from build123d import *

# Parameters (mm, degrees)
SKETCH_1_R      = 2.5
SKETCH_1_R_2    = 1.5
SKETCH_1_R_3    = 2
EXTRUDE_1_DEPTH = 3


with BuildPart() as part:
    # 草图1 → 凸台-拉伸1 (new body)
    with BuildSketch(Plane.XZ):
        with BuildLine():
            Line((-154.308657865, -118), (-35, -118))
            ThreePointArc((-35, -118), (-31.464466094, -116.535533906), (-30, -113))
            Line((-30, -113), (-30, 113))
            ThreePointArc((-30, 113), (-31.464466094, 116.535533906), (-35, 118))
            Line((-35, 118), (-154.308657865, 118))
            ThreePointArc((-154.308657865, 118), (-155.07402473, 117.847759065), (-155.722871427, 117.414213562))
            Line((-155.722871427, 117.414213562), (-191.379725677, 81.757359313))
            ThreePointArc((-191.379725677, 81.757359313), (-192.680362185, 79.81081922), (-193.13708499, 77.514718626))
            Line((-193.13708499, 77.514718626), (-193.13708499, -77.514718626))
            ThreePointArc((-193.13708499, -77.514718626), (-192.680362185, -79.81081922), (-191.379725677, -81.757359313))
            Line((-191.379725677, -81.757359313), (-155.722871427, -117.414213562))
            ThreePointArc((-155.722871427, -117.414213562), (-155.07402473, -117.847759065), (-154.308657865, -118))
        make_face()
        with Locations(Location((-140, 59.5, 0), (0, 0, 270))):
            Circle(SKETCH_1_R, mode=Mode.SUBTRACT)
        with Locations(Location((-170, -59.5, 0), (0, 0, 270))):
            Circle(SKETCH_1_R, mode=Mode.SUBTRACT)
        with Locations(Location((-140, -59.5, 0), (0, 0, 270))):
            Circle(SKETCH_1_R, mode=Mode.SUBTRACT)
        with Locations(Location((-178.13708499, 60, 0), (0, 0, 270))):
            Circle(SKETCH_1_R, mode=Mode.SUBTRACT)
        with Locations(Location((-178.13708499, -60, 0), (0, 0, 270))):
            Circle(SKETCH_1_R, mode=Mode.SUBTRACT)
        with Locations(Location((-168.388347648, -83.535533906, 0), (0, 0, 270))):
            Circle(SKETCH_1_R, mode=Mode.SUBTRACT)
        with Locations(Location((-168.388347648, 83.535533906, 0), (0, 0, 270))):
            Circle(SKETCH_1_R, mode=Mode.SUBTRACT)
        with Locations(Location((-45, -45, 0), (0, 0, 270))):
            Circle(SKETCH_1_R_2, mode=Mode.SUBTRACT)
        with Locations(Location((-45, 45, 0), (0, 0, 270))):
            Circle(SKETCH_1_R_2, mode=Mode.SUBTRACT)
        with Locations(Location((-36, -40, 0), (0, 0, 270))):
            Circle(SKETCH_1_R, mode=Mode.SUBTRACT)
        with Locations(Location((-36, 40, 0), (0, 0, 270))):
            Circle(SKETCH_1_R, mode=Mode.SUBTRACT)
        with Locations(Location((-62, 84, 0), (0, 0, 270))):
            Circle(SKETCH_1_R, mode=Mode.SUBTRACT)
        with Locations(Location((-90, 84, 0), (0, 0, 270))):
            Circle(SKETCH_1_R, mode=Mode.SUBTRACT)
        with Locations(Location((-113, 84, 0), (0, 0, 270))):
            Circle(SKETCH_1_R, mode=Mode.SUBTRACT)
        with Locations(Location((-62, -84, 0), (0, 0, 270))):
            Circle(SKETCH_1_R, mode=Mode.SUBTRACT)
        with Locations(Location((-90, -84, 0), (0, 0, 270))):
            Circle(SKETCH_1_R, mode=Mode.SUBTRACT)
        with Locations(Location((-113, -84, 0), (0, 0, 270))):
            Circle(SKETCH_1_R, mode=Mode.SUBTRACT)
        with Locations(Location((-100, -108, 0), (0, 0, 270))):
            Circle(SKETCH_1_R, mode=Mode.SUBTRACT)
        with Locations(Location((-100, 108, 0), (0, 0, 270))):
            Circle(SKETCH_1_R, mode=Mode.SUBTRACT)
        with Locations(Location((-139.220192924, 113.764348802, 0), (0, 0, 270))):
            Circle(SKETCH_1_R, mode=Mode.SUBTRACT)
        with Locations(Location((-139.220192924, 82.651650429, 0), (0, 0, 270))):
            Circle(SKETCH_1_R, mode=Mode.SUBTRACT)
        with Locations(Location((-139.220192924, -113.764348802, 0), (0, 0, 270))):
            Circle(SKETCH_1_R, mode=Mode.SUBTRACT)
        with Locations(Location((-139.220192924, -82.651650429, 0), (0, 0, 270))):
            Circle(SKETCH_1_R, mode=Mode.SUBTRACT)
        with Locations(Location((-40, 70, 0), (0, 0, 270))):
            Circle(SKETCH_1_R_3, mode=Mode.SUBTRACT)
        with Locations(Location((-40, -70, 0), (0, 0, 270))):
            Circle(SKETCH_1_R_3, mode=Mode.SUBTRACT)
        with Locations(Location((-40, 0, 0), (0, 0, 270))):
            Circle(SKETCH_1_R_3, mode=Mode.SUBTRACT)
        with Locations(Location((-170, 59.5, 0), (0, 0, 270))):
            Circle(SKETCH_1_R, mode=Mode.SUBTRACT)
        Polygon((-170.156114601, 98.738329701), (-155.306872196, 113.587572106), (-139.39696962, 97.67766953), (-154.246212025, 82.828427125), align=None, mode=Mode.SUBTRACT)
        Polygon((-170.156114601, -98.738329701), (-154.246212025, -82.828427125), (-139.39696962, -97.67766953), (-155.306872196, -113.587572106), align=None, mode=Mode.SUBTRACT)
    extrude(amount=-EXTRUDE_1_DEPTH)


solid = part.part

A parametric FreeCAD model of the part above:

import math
import FreeCAD as App
import Part
import Sketcher


def add_polygon(sketch, points):
    """Adds a closed chain of lines whose ends are joined by coincident constraints."""
    first, n = sketch.GeometryCount, len(points)
    for a, b in zip(points, points[1:] + points[:1]):
        sketch.addGeometry(Part.LineSegment(App.Vector(*a, 0), App.Vector(*b, 0)), False)
    for i in range(n):
        sketch.addConstraint(Sketcher.Constraint("Coincident", first + i, 2, first + (i + 1) % n, 1))

doc = App.newDocument("Part")
params = doc.addObject("Spreadsheet::Sheet", "Params")
for row, (alias, value) in enumerate([
    ("sketch1_diameter", "5 mm"),
    ("sketch1_diameter2", "4 mm"),
    ("sketch1_diameter3", "3 mm"),
    ("sketch1_radius", "5 mm"),
    ("sketch1_radius2", "6 mm"),
    ("pad1_length", "3 mm"),
], start=1):
    params.set(f"A{row}", alias)
    params.set(f"B{row}", "=" + value)
    params.setAlias(f"B{row}", alias)

body = doc.addObject("PartDesign::Body", "Body")

# Sketch on XZ plane
sketch1 = doc.addObject("Sketcher::SketchObject", "Sketch")
body.addObject(sketch1)
sketch1.AttachmentSupport = (doc.XZ_Plane, [""])
sketch1.MapMode = "FlatFace"
sketch1.addGeometry(Part.LineSegment(App.Vector(-154.3, -118, 0), App.Vector(-35, -118, 0)), False)  # 0
sketch1.addGeometry(Part.ArcOfCircle(Part.Circle(App.Vector(-35, -113, 0), App.Vector(0, 0, 1), 5), math.radians(-90), math.radians(0)), False)  # 1
sketch1.addGeometry(Part.LineSegment(App.Vector(-30, -113, 0), App.Vector(-30, 113, 0)), False)  # 2
sketch1.addGeometry(Part.ArcOfCircle(Part.Circle(App.Vector(-35, 113, 0), App.Vector(0, 0, 1), 5), math.radians(0), math.radians(90)), False)  # 3
sketch1.addGeometry(Part.LineSegment(App.Vector(-35, 118, 0), App.Vector(-154.3, 118, 0)), False)  # 4
sketch1.addGeometry(Part.ArcOfCircle(Part.Circle(App.Vector(-154.3, 116, 0), App.Vector(0, 0, 1), 2), math.radians(90), math.radians(135)), False)  # 5
sketch1.addGeometry(Part.LineSegment(App.Vector(-155.7, 117.4, 0), App.Vector(-191.4, 81.8, 0)), False)  # 6
sketch1.addGeometry(Part.ArcOfCircle(Part.Circle(App.Vector(-187.1, 77.5, 0), App.Vector(0, 0, 1), 6), math.radians(135), math.radians(180)), False)  # 7
sketch1.addGeometry(Part.LineSegment(App.Vector(-193.1, 77.5, 0), App.Vector(-193.1, -77.5, 0)), False)  # 8
sketch1.addGeometry(Part.ArcOfCircle(Part.Circle(App.Vector(-187.1, -77.5, 0), App.Vector(0, 0, 1), 6), math.radians(180), math.radians(225)), False)  # 9
sketch1.addGeometry(Part.LineSegment(App.Vector(-191.4, -81.8, 0), App.Vector(-155.7, -117.4, 0)), False)  # 10
sketch1.addGeometry(Part.ArcOfCircle(Part.Circle(App.Vector(-154.3, -116, 0), App.Vector(0, 0, 1), 2), math.radians(-135), math.radians(-90)), False)  # 11
add_polygon(sketch1, [(-155.3, -113.6), (-170.2, -98.7), (-154.2, -82.8), (-139.4, -97.7)])  # lines 12-15
sketch1.addGeometry(Part.Circle(App.Vector(-168.4, -83.5, 0), App.Vector(0, 0, 1), 2.5), False)  # 16
sketch1.addGeometry(Part.Circle(App.Vector(-178.1, -60, 0), App.Vector(0, 0, 1), 2.5), False)  # 17
sketch1.addGeometry(Part.Circle(App.Vector(-170, -59.5, 0), App.Vector(0, 0, 1), 2.5), False)  # 18
sketch1.addGeometry(Part.Circle(App.Vector(-139.2, -113.8, 0), App.Vector(0, 0, 1), 2.5), False)  # 19
sketch1.addGeometry(Part.Circle(App.Vector(-139.2, -82.7, 0), App.Vector(0, 0, 1), 2.5), False)  # 20
sketch1.addGeometry(Part.Circle(App.Vector(-140, -59.5, 0), App.Vector(0, 0, 1), 2.5), False)  # 21
sketch1.addGeometry(Part.Circle(App.Vector(-113, -84, 0), App.Vector(0, 0, 1), 2.5), False)  # 22
sketch1.addGeometry(Part.Circle(App.Vector(-100, -108, 0), App.Vector(0, 0, 1), 2.5), False)  # 23
sketch1.addGeometry(Part.Circle(App.Vector(-90, -84, 0), App.Vector(0, 0, 1), 2.5), False)  # 24
sketch1.addGeometry(Part.Circle(App.Vector(-62, -84, 0), App.Vector(0, 0, 1), 2.5), False)  # 25
sketch1.addGeometry(Part.Circle(App.Vector(-40, -70, 0), App.Vector(0, 0, 1), 2), False)  # 26
sketch1.addGeometry(Part.Circle(App.Vector(-45, -45, 0), App.Vector(0, 0, 1), 1.5), False)  # 27
sketch1.addGeometry(Part.Circle(App.Vector(-36, -40, 0), App.Vector(0, 0, 1), 2.5), False)  # 28
sketch1.addGeometry(Part.Circle(App.Vector(-40, 0, 0), App.Vector(0, 0, 1), 2), False)  # 29
sketch1.addGeometry(Part.Circle(App.Vector(-178.1, 60, 0), App.Vector(0, 0, 1), 2.5), False)  # 30
sketch1.addGeometry(Part.Circle(App.Vector(-170, 59.5, 0), App.Vector(0, 0, 1), 2.5), False)  # 31
sketch1.addGeometry(Part.Circle(App.Vector(-168.4, 83.5, 0), App.Vector(0, 0, 1), 2.5), False)  # 32
add_polygon(sketch1, [(-154.2, 82.8), (-170.2, 98.7), (-155.3, 113.6), (-139.4, 97.7)])  # lines 33-36
sketch1.addGeometry(Part.Circle(App.Vector(-140, 59.5, 0), App.Vector(0, 0, 1), 2.5), False)  # 37
sketch1.addGeometry(Part.Circle(App.Vector(-139.2, 82.7, 0), App.Vector(0, 0, 1), 2.5), False)  # 38
sketch1.addGeometry(Part.Circle(App.Vector(-113, 84, 0), App.Vector(0, 0, 1), 2.5), False)  # 39
sketch1.addGeometry(Part.Circle(App.Vector(-139.2, 113.8, 0), App.Vector(0, 0, 1), 2.5), False)  # 40
sketch1.addGeometry(Part.Circle(App.Vector(-36, 40, 0), App.Vector(0, 0, 1), 2.5), False)  # 41
sketch1.addGeometry(Part.Circle(App.Vector(-45, 45, 0), App.Vector(0, 0, 1), 1.5), False)  # 42
sketch1.addGeometry(Part.Circle(App.Vector(-90, 84, 0), App.Vector(0, 0, 1), 2.5), False)  # 43
sketch1.addGeometry(Part.Circle(App.Vector(-100, 108, 0), App.Vector(0, 0, 1), 2.5), False)  # 44
sketch1.addGeometry(Part.Circle(App.Vector(-62, 84, 0), App.Vector(0, 0, 1), 2.5), False)  # 45
sketch1.addGeometry(Part.Circle(App.Vector(-40, 70, 0), App.Vector(0, 0, 1), 2), False)  # 46
sketch1.addConstraint(Sketcher.Constraint("Tangent", 0, 2, 1, 1))
sketch1.addConstraint(Sketcher.Constraint("Tangent", 1, 2, 2, 1))
sketch1.addConstraint(Sketcher.Constraint("Tangent", 2, 2, 3, 1))
sketch1.addConstraint(Sketcher.Constraint("Tangent", 3, 2, 4, 1))
sketch1.addConstraint(Sketcher.Constraint("Tangent", 4, 2, 5, 1))
sketch1.addConstraint(Sketcher.Constraint("Tangent", 5, 2, 6, 1))
sketch1.addConstraint(Sketcher.Constraint("Tangent", 6, 2, 7, 1))
sketch1.addConstraint(Sketcher.Constraint("Tangent", 7, 2, 8, 1))
sketch1.addConstraint(Sketcher.Constraint("Tangent", 8, 2, 9, 1))
sketch1.addConstraint(Sketcher.Constraint("Tangent", 9, 2, 10, 1))
sketch1.addConstraint(Sketcher.Constraint("Tangent", 10, 2, 11, 1))
sketch1.addConstraint(Sketcher.Constraint("Tangent", 11, 2, 0, 1))
sketch1.addConstraint(Sketcher.Constraint("Horizontal", 0))
sketch1.addConstraint(Sketcher.Constraint("Vertical", 2))
sketch1.addConstraint(Sketcher.Constraint("Horizontal", 4))
sketch1.addConstraint(Sketcher.Constraint("Vertical", 8))
sketch1.addConstraint(Sketcher.Constraint("Equal", 1, 3))
sketch1.addConstraint(Sketcher.Constraint("Equal", 7, 9))
sketch1.addConstraint(Sketcher.Constraint("Equal", 5, 11))
sketch1.addConstraint(Sketcher.Constraint("Equal", 16, 17))
sketch1.addConstraint(Sketcher.Constraint("Equal", 17, 18))
sketch1.addConstraint(Sketcher.Constraint("Equal", 18, 19))
sketch1.addConstraint(Sketcher.Constraint("Equal", 19, 20))
sketch1.addConstraint(Sketcher.Constraint("Equal", 20, 21))
sketch1.addConstraint(Sketcher.Constraint("Equal", 21, 22))
sketch1.addConstraint(Sketcher.Constraint("Equal", 22, 23))
sketch1.addConstraint(Sketcher.Constraint("Equal", 23, 24))
sketch1.addConstraint(Sketcher.Constraint("Equal", 24, 25))
sketch1.addConstraint(Sketcher.Constraint("Equal", 11, 26))
sketch1.addConstraint(Sketcher.Constraint("Equal", 25, 28))
sketch1.addConstraint(Sketcher.Constraint("Equal", 26, 29))
sketch1.addConstraint(Sketcher.Constraint("Equal", 28, 30))
sketch1.addConstraint(Sketcher.Constraint("Equal", 30, 31))
sketch1.addConstraint(Sketcher.Constraint("Equal", 31, 32))
sketch1.addConstraint(Sketcher.Constraint("Equal", 32, 37))
sketch1.addConstraint(Sketcher.Constraint("Equal", 37, 38))
sketch1.addConstraint(Sketcher.Constraint("Equal", 38, 39))
sketch1.addConstraint(Sketcher.Constraint("Equal", 39, 40))
sketch1.addConstraint(Sketcher.Constraint("Equal", 40, 41))
sketch1.addConstraint(Sketcher.Constraint("Equal", 27, 42))
sketch1.addConstraint(Sketcher.Constraint("Equal", 41, 43))
sketch1.addConstraint(Sketcher.Constraint("Equal", 43, 44))
sketch1.addConstraint(Sketcher.Constraint("Equal", 44, 45))
sketch1.addConstraint(Sketcher.Constraint("Equal", 29, 46))
sketch1.addConstraint(Sketcher.Constraint("Symmetric", 5, 3, 11, 3, -1))
sketch1.addConstraint(Sketcher.Constraint("Symmetric", 17, 3, 30, 3, -1))
sketch1.addConstraint(Sketcher.Constraint("Symmetric", 18, 3, 31, 3, -1))
sketch1.addConstraint(Sketcher.Constraint("Symmetric", 16, 3, 32, 3, -1))
sketch1.addConstraint(Sketcher.Constraint("Symmetric", 21, 3, 37, 3, -1))
sketch1.addConstraint(Sketcher.Constraint("Symmetric", 20, 3, 38, 3, -1))
sketch1.addConstraint(Sketcher.Constraint("Symmetric", 22, 3, 39, 3, -1))
sketch1.addConstraint(Sketcher.Constraint("Symmetric", 19, 3, 40, 3, -1))
sketch1.addConstraint(Sketcher.Constraint("Symmetric", 28, 3, 41, 3, -1))
sketch1.addConstraint(Sketcher.Constraint("Symmetric", 27, 3, 42, 3, -1))
sketch1.addConstraint(Sketcher.Constraint("Symmetric", 24, 3, 43, 3, -1))
sketch1.addConstraint(Sketcher.Constraint("Symmetric", 23, 3, 44, 3, -1))
sketch1.addConstraint(Sketcher.Constraint("Symmetric", 25, 3, 45, 3, -1))
sketch1.addConstraint(Sketcher.Constraint("Symmetric", 26, 3, 46, 3, -1))
sketch1.addConstraint(Sketcher.Constraint("Symmetric", 12, 2, 33, 2, -1))
sketch1.addConstraint(Sketcher.Constraint("Symmetric", 15, 2, 34, 2, -1))
sketch1.addConstraint(Sketcher.Constraint("Symmetric", 14, 2, 35, 2, -1))
sketch1.addConstraint(Sketcher.Constraint("Symmetric", 13, 2, 36, 2, -1))
sketch1.addConstraint(Sketcher.Constraint("PointOnObject", 29, 3, -1))
sketch1.addConstraint(Sketcher.Constraint("Perpendicular", 6, 10))
sketch1.addConstraint(Sketcher.Constraint("Parallel", 10, 12))
sketch1.addConstraint(Sketcher.Constraint("Perpendicular", 12, 13))
sketch1.addConstraint(Sketcher.Constraint("Perpendicular", 13, 14))
sketch1.addConstraint(Sketcher.Constraint("Perpendicular", 14, 15))
sketch1.addConstraint(Sketcher.Constraint("Perpendicular", 15, 33))
sketch1.addConstraint(Sketcher.Constraint("Horizontal", 18, 3, 21, 3))
sketch1.addConstraint(Sketcher.Constraint("Horizontal", 22, 3, 24, 3))
sketch1.addConstraint(Sketcher.Constraint("Horizontal", 24, 3, 25, 3))
sketch1.addConstraint(Sketcher.Constraint("Vertical", 19, 3, 20, 3))
sketch1.addConstraint(Sketcher.Constraint("Vertical", 26, 3, 29, 3))
sketch1.addConstraint(Sketcher.Constraint("Diameter", 16, 5.0))
sketch1.addConstraint(Sketcher.Constraint("Diameter", 26, 4.0))
sketch1.addConstraint(Sketcher.Constraint("Diameter", 27, 3.0))
sketch1.addConstraint(Sketcher.Constraint("Radius", 1, 5.0))
sketch1.addConstraint(Sketcher.Constraint("Radius", 7, 6.0))
sketch1.addConstraint(Sketcher.Constraint("DistanceY", 2, 1, 2, 2, 226.0))
sketch1.addConstraint(Sketcher.Constraint("Distance", 12, 21.0))
sketch1.addConstraint(Sketcher.Constraint("DistanceX", 1, 3, -1, 1, 35.0))
sketch1.addConstraint(Sketcher.Constraint("DistanceY", 17, 3, -1, 1, 60.0))
sketch1.addConstraint(Sketcher.Constraint("DistanceX", 18, 3, -1, 1, 170.0))
sketch1.addConstraint(Sketcher.Constraint("DistanceX", 21, 3, -1, 1, 140.0))
sketch1.addConstraint(Sketcher.Constraint("DistanceX", 22, 3, -1, 1, 113.0))
sketch1.addConstraint(Sketcher.Constraint("DistanceY", 22, 3, -1, 1, 84.0))
sketch1.addConstraint(Sketcher.Constraint("DistanceX", 23, 3, -1, 1, 100.0))
sketch1.addConstraint(Sketcher.Constraint("DistanceY", 23, 3, -1, 1, 108.0))
sketch1.addConstraint(Sketcher.Constraint("DistanceX", 24, 3, -1, 1, 90.0))
sketch1.addConstraint(Sketcher.Constraint("DistanceX", 25, 3, -1, 1, 62.0))
sketch1.addConstraint(Sketcher.Constraint("DistanceX", 26, 3, -1, 1, 40.0))
sketch1.addConstraint(Sketcher.Constraint("DistanceY", 26, 3, -1, 1, 70.0))
sketch1.addConstraint(Sketcher.Constraint("DistanceX", 27, 3, -1, 1, 45.0))
sketch1.addConstraint(Sketcher.Constraint("DistanceY", 27, 3, -1, 1, 45.0))
sketch1.addConstraint(Sketcher.Constraint("DistanceX", 28, 3, -1, 1, 36.0))
sketch1.addConstraint(Sketcher.Constraint("DistanceY", 28, 3, -1, 1, 40.0))
sketch1.addConstraint(Sketcher.Constraint("DistanceX", 9, 3, 17, 3, 9.0))
sketch1.addConstraint(Sketcher.Constraint("DistanceY", 18, 3, 31, 3, 119.0))
sketch1.addConstraint(Sketcher.Constraint("Distance", 13, 22.5))
sketch1.addConstraint(Sketcher.Constraint("DistanceX", 10, 2, 15, 2, 0.415999))
sketch1.addConstraint(Sketcher.Constraint("DistanceY", 19, 3, 20, 3, 31.112698))
sketch1.addConstraint(Sketcher.Constraint("DistanceX", 0, 1, 0, 2, 119.308658))
sketch1.addConstraint(Sketcher.Constraint("DistanceY", 8, 2, 8, 1, 155.029437))
sketch1.addConstraint(Sketcher.Constraint("DistanceY", 19, 3, -1, 1, 113.764349))
sketch1.addConstraint(Sketcher.Constraint("DistanceY", 12, 2, -1, 1, 98.73833))
sketch1.addConstraint(Sketcher.Constraint("DistanceX", 16, 3, 11, 3, 14.07969))
sketch1.addConstraint(Sketcher.Constraint("DistanceX", 5, 2, 40, 3, 16.502679))
sketch1.addConstraint(Sketcher.Constraint("DistanceY", 32, 3, 5, 2, 33.87868))
sketch1.setExpression("Constraints[82]", "Params.sketch1_diameter")
sketch1.setExpression("Constraints[83]", "Params.sketch1_diameter2")
sketch1.setExpression("Constraints[84]", "Params.sketch1_diameter3")
sketch1.setExpression("Constraints[85]", "Params.sketch1_radius")
sketch1.setExpression("Constraints[86]", "Params.sketch1_radius2")
pad1 = doc.addObject("PartDesign::Pad", "Pad")
body.addObject(pad1)
pad1.Profile = sketch1
pad1.setExpression("Length", "Params.pad1_length")
pad1.Reversed = True

doc.recompute()
